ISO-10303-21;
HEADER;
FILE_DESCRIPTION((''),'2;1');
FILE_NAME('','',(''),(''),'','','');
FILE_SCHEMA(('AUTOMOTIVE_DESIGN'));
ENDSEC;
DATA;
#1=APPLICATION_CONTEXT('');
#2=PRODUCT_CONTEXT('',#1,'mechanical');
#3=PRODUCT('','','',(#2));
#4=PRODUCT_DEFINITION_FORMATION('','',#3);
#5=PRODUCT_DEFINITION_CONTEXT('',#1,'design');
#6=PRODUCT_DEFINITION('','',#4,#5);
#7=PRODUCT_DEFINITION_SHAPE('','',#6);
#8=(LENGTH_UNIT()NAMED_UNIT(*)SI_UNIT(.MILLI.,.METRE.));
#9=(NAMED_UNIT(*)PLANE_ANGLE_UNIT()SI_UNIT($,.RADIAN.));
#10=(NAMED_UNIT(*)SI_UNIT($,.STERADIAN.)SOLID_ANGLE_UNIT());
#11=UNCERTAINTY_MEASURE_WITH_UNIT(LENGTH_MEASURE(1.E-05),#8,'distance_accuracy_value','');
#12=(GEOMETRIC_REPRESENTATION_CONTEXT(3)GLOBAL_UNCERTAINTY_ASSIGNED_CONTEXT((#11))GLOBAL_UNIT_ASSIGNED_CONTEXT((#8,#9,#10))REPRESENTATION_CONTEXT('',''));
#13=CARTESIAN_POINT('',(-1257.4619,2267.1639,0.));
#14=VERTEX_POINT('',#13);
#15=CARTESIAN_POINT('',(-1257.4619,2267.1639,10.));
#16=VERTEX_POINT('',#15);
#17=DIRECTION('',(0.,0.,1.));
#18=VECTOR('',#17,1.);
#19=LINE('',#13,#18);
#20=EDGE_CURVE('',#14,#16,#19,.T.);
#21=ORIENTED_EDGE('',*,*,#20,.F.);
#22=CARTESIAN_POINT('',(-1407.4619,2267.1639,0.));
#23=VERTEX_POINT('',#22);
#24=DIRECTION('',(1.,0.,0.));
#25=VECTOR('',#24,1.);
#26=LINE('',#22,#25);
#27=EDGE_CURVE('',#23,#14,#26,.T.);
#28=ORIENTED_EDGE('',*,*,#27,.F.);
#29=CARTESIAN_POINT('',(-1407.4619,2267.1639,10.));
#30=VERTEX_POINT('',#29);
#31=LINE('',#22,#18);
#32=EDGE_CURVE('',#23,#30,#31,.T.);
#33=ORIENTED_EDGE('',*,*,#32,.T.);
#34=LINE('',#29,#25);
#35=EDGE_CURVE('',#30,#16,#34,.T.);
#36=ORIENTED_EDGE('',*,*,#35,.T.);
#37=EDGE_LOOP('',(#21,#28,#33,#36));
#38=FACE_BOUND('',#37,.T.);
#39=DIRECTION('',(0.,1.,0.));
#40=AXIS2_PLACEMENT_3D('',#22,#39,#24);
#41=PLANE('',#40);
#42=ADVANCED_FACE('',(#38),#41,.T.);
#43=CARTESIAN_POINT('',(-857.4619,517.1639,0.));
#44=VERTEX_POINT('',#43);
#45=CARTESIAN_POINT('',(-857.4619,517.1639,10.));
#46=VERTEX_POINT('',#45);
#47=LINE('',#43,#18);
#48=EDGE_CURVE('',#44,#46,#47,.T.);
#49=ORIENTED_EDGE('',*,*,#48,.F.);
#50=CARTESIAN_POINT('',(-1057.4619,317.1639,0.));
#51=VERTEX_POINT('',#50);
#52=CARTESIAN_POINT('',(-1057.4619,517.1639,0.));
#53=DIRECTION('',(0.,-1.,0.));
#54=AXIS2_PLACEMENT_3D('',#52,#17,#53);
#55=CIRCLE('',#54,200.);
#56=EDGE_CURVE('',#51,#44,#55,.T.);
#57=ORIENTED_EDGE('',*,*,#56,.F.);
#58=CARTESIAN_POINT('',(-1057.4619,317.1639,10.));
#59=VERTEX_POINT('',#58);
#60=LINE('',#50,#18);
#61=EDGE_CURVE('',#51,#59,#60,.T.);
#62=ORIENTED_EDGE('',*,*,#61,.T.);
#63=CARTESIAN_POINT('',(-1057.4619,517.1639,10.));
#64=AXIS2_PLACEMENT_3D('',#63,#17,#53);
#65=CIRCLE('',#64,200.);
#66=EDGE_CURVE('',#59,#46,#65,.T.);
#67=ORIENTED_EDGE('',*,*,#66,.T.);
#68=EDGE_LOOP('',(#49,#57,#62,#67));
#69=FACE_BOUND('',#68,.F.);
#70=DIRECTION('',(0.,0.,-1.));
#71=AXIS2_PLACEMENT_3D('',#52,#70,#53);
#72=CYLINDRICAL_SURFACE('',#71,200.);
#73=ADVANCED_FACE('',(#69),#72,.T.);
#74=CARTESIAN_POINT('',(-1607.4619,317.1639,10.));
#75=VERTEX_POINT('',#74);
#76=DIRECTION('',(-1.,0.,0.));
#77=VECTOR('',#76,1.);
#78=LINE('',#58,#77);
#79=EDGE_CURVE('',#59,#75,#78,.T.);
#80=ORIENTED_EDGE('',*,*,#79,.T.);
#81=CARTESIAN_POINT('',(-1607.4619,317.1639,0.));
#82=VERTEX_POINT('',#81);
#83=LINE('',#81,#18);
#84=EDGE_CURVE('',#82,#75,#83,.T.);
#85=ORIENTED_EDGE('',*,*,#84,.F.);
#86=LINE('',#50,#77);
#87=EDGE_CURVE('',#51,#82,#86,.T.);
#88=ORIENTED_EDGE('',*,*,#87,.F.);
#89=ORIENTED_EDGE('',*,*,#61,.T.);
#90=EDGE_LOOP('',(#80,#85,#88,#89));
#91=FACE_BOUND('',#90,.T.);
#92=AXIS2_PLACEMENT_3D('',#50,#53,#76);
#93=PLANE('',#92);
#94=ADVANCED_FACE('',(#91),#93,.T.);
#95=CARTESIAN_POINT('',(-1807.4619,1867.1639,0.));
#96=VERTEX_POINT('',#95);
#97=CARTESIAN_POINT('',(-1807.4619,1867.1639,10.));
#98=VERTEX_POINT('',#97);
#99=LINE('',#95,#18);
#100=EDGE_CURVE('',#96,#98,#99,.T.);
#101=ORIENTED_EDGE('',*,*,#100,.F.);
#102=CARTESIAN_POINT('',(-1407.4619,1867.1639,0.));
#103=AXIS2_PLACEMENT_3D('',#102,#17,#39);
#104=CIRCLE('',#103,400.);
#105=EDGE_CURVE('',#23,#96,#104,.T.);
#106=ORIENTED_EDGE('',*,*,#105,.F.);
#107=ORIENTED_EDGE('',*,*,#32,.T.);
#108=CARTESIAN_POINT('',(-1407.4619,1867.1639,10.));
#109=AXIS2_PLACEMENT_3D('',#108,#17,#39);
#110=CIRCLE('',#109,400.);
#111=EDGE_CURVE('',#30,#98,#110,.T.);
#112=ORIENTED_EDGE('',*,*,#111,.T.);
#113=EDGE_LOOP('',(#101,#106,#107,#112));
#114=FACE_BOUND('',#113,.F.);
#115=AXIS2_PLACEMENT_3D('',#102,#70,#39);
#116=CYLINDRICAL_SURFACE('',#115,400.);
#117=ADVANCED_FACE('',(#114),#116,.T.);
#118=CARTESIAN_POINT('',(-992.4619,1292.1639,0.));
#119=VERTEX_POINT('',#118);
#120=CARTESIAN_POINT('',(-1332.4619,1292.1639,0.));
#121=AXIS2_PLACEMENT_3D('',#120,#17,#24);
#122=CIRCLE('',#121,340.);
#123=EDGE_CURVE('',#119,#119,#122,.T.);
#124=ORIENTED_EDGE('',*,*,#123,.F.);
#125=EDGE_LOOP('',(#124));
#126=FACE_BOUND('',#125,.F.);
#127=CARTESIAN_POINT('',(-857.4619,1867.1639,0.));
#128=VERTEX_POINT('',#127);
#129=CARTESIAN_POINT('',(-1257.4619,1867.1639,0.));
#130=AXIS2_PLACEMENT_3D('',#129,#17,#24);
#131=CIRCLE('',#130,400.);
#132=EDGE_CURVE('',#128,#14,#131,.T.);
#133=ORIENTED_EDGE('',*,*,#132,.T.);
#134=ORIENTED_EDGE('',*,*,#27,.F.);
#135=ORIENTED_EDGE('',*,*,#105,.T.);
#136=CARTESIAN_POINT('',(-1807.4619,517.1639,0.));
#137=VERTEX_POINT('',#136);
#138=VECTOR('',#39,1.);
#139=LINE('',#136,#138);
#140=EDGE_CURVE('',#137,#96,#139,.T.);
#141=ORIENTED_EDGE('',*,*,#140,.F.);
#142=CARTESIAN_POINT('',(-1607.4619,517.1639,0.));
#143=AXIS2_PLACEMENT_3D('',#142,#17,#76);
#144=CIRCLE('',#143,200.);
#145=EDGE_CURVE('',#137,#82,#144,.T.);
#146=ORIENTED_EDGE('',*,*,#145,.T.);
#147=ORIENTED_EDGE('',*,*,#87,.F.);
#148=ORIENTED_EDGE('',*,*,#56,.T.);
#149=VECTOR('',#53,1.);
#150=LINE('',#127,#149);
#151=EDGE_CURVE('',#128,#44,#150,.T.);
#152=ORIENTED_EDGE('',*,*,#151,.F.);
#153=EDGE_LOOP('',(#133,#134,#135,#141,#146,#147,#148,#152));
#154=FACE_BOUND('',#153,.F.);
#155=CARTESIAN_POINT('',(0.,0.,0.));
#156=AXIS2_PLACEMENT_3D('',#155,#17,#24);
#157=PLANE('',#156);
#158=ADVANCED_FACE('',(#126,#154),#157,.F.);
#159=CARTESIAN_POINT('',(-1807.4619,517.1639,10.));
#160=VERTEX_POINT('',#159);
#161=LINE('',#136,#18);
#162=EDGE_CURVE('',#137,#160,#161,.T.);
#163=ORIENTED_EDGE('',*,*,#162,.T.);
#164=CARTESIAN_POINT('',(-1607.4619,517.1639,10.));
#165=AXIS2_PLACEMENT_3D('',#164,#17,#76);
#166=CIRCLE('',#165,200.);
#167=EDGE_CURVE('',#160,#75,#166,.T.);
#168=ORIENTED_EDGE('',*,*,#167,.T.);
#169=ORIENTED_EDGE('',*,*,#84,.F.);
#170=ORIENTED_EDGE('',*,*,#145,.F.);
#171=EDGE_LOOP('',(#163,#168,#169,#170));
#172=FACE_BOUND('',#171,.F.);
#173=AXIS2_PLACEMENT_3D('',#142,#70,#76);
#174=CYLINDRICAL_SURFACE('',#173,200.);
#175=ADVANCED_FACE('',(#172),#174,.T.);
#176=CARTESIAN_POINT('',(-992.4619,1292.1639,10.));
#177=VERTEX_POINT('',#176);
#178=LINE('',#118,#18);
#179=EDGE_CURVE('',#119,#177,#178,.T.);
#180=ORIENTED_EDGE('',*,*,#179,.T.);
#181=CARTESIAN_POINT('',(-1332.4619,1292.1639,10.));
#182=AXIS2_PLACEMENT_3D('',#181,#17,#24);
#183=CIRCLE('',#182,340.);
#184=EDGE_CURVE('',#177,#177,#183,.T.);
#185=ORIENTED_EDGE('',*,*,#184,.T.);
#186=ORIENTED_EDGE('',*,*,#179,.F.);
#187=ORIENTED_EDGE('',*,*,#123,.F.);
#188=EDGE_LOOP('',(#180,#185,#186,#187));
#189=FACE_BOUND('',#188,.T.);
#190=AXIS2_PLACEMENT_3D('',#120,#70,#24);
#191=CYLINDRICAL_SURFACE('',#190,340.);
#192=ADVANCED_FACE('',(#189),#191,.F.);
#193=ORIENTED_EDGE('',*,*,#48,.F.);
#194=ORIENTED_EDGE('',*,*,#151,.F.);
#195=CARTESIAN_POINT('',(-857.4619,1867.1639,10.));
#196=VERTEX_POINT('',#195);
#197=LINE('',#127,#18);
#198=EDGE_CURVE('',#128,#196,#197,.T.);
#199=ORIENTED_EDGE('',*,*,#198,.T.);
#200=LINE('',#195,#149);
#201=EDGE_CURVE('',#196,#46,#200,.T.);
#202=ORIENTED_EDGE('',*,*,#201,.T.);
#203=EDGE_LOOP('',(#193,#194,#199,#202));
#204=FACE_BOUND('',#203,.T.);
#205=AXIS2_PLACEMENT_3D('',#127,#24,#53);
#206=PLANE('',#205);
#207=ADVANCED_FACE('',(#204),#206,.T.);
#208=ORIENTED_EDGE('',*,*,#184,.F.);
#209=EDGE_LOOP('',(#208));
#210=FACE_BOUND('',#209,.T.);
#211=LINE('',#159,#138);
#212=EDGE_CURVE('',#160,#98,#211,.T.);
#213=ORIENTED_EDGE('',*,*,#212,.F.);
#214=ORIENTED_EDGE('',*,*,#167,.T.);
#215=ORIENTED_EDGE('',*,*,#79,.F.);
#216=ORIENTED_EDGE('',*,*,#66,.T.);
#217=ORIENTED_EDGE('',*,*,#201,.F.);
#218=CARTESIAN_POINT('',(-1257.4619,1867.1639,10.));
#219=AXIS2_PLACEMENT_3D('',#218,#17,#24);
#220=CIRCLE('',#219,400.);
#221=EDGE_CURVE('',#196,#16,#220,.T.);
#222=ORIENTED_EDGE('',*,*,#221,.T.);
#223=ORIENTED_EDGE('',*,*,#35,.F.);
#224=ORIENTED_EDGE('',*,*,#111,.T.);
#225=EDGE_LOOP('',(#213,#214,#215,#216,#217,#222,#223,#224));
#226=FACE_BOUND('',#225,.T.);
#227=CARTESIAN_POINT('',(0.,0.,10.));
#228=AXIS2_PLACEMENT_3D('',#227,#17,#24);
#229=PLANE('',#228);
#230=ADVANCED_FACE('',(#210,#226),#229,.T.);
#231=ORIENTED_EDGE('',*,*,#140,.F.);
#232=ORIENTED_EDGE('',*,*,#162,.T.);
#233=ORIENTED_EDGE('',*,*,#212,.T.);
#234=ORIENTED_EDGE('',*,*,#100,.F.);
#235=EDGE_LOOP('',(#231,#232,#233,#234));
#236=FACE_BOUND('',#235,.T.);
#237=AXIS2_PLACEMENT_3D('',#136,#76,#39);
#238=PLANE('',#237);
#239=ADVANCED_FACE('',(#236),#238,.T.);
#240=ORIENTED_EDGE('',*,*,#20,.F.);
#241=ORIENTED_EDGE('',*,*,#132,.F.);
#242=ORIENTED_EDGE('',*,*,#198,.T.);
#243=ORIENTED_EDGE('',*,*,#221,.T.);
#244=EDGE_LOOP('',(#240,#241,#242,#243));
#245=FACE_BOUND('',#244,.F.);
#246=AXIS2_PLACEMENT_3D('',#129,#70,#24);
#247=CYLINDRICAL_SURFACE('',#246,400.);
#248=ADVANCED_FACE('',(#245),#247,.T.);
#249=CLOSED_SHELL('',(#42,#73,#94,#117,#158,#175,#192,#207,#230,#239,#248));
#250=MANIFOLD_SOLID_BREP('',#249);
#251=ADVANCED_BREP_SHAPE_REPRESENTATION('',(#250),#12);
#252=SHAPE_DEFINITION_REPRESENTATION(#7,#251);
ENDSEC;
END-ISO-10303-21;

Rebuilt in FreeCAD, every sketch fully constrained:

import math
import FreeCAD as App
import Part
import Sketcher

V = App.Vector
Q = App.Units.Quantity

doc = App.newDocument("Part")
params = doc.addObject("Spreadsheet::Sheet", "Params")
for row, (alias, value) in enumerate([
    ("sketch1_diameter", "680 mm"),
    ("sketch1_radius", "200 mm"),
    ("sketch1_radius2", "400 mm"),
    ("pad1_length", "10 mm"),
], start=1):
    params.set(f"A{row}", alias)
    params.set(f"B{row}", "=" + value)
    params.setAlias(f"B{row}", alias)

body = doc.addObject("PartDesign::Body", "Body")

# Sketch on XY plane
sketch1 = doc.addObject("Sketcher::SketchObject", "Sketch")
body.addObject(sketch1)
sketch1.AttachmentSupport = (doc.XY_Plane, [""])
sketch1.MapMode = "FlatFace"
sketch1.addGeometry([
    Part.LineSegment(V(-1807, 1867, 0), V(-1807, 517, 0)),  # 0
    Part.ArcOfCircle(Part.Circle(V(-1607, 517, 0), V(0, 0, 1), 200), math.radians(180), math.radians(270)),  # 1
    Part.LineSegment(V(-1607, 317, 0), V(-1057, 317, 0)),  # 2
    Part.ArcOfCircle(Part.Circle(V(-1057, 517, 0), V(0, 0, 1), 200), math.radians(-90), math.radians(0)),  # 3
    Part.LineSegment(V(-857, 517, 0), V(-857, 1867, 0)),  # 4
    Part.ArcOfCircle(Part.Circle(V(-1257, 1867, 0), V(0, 0, 1), 400), math.radians(0), math.radians(90)),  # 5
    Part.LineSegment(V(-1257, 2267, 0), V(-1407, 2267, 0)),  # 6
    Part.ArcOfCircle(Part.Circle(V(-1407, 1867, 0), V(0, 0, 1), 400), math.radians(90), math.radians(180)),  # 7
    Part.Circle(V(-1332, 1292, 0), V(0, 0, 1), 340),  # 8
], False)
sketch1.addConstraint([
    Sketcher.Constraint("Tangent", 0, 2, 1, 1),
    Sketcher.Constraint("Tangent", 1, 2, 2, 1),
    Sketcher.Constraint("Tangent", 2, 2, 3, 1),
    Sketcher.Constraint("Tangent", 3, 2, 4, 1),
    Sketcher.Constraint("Tangent", 4, 2, 5, 1),
    Sketcher.Constraint("Tangent", 5, 2, 6, 1),
    Sketcher.Constraint("Tangent", 6, 2, 7, 1),
    Sketcher.Constraint("Tangent", 7, 2, 0, 1),
    Sketcher.Constraint("Vertical", 0),
    Sketcher.Constraint("Horizontal", 2),
    Sketcher.Constraint("Vertical", 4),
    Sketcher.Constraint("Horizontal", 6),
    Sketcher.Constraint("Equal", 1, 3),
    Sketcher.Constraint("Equal", 5, 7),
    Sketcher.Constraint("Diameter", 8, Q("680 mm")),
    Sketcher.Constraint("Radius", 1, Q("200 mm")),
    Sketcher.Constraint("Radius", 5, Q("400 mm")),
    Sketcher.Constraint("DistanceX", 0, 2, 8, 3, Q("475 mm")),
    Sketcher.Constraint("DistanceY", 1, 2, 8, 3, Q("975 mm")),
    Sketcher.Constraint("DistanceX", 8, 3, 3, 2, Q("475 mm")),
    Sketcher.Constraint("DistanceY", 8, 3, 5, 2, Q("975 mm")),
    Sketcher.Constraint("DistanceX", 1, 3, -1, 1, Q("1607.462 mm")),
    Sketcher.Constraint("DistanceY", -1, 1, 1, 3, Q("517.164 mm")),
])
sketch1.setExpression("Constraints[14]", "Params.sketch1_diameter")
sketch1.setExpression("Constraints[15]", "Params.sketch1_radius")
sketch1.setExpression("Constraints[16]", "Params.sketch1_radius2")
pad1 = doc.addObject("PartDesign::Pad", "Pad")
body.addObject(pad1)
pad1.Profile = sketch1
pad1.setExpression("Length", "Params.pad1_length")

doc.recompute()
